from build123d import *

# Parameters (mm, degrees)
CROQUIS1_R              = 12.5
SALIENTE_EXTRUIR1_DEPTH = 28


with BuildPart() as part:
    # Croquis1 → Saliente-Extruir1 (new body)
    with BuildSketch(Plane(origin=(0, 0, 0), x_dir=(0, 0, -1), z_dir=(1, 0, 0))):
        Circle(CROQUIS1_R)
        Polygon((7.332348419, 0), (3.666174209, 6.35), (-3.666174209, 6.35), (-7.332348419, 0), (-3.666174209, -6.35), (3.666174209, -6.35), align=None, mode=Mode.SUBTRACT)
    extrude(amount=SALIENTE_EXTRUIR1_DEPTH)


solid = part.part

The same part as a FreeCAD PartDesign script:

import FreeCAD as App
import Part
import Sketcher
Q = App.Units.Quantity


def add_polygon(sketch, points):
    """Adds a closed chain of lines whose ends are joined by coincident constraints."""
    first, n = sketch.GeometryCount, len(points)
    for a, b in zip(points, points[1:] + points[:1]):
        sketch.addGeometry(Part.LineSegment(App.Vector(*a, 0), App.Vector(*b, 0)), False)
    for i in range(n):
        sketch.addConstraint(Sketcher.Constraint("Coincident", first + i, 2, first + (i + 1) % n, 1))

doc = App.newDocument("Part")
body = doc.addObject("PartDesign::Body", "Body")

sketch1 = body.newObject("Sketcher::SketchObject", "Sketch")
sketch1.AttachmentSupport = (doc.getObject("YZ_Plane"), [""])
sketch1.MapMode = "FlatFace"
sketch1.addGeometry(Part.Circle(App.Vector(0, 0, 0), App.Vector(0, 0, 1), 12), False)
add_polygon(sketch1, [(6, -4), (0, -7), (-6, -4), (-6, 4), (0, 7), (6, 4)])
sketch1.addConstraint(Sketcher.Constraint("Vertical", 3))
sketch1.addConstraint(Sketcher.Constraint("Vertical", 6))
sketch1.addConstraint(Sketcher.Constraint("Coincident", 0, 3, -1, 1))
sketch1.addConstraint(Sketcher.Constraint("Symmetric", 1, 2, 4, 2, -1, 1))
sketch1.addConstraint(Sketcher.Constraint("Symmetric", 2, 2, 5, 2, -1, 1))
sketch1.addConstraint(Sketcher.Constraint("PointOnObject", 1, 2, -2))
sketch1.addConstraint(Sketcher.Constraint("Parallel", 1, 4))
sketch1.addConstraint(Sketcher.Constraint("Horizontal", 3, 2, 5, 2))
sketch1.addConstraint(Sketcher.Constraint("Diameter", 0, 25.0))
sketch1.addConstraint(Sketcher.Constraint("Angle", 1, Q("-150 deg")))
sketch1.addConstraint(Sketcher.Constraint("DistanceX", 3, 2, 5, 2, 12.7))
sketch1.addConstraint(Sketcher.Constraint("DistanceY", 3, 1, 3, 2, 7.332348))
pad1 = body.newObject("PartDesign::Pad", "Pad")
pad1.Profile = sketch1
pad1.Length = 28

doc.recompute()
